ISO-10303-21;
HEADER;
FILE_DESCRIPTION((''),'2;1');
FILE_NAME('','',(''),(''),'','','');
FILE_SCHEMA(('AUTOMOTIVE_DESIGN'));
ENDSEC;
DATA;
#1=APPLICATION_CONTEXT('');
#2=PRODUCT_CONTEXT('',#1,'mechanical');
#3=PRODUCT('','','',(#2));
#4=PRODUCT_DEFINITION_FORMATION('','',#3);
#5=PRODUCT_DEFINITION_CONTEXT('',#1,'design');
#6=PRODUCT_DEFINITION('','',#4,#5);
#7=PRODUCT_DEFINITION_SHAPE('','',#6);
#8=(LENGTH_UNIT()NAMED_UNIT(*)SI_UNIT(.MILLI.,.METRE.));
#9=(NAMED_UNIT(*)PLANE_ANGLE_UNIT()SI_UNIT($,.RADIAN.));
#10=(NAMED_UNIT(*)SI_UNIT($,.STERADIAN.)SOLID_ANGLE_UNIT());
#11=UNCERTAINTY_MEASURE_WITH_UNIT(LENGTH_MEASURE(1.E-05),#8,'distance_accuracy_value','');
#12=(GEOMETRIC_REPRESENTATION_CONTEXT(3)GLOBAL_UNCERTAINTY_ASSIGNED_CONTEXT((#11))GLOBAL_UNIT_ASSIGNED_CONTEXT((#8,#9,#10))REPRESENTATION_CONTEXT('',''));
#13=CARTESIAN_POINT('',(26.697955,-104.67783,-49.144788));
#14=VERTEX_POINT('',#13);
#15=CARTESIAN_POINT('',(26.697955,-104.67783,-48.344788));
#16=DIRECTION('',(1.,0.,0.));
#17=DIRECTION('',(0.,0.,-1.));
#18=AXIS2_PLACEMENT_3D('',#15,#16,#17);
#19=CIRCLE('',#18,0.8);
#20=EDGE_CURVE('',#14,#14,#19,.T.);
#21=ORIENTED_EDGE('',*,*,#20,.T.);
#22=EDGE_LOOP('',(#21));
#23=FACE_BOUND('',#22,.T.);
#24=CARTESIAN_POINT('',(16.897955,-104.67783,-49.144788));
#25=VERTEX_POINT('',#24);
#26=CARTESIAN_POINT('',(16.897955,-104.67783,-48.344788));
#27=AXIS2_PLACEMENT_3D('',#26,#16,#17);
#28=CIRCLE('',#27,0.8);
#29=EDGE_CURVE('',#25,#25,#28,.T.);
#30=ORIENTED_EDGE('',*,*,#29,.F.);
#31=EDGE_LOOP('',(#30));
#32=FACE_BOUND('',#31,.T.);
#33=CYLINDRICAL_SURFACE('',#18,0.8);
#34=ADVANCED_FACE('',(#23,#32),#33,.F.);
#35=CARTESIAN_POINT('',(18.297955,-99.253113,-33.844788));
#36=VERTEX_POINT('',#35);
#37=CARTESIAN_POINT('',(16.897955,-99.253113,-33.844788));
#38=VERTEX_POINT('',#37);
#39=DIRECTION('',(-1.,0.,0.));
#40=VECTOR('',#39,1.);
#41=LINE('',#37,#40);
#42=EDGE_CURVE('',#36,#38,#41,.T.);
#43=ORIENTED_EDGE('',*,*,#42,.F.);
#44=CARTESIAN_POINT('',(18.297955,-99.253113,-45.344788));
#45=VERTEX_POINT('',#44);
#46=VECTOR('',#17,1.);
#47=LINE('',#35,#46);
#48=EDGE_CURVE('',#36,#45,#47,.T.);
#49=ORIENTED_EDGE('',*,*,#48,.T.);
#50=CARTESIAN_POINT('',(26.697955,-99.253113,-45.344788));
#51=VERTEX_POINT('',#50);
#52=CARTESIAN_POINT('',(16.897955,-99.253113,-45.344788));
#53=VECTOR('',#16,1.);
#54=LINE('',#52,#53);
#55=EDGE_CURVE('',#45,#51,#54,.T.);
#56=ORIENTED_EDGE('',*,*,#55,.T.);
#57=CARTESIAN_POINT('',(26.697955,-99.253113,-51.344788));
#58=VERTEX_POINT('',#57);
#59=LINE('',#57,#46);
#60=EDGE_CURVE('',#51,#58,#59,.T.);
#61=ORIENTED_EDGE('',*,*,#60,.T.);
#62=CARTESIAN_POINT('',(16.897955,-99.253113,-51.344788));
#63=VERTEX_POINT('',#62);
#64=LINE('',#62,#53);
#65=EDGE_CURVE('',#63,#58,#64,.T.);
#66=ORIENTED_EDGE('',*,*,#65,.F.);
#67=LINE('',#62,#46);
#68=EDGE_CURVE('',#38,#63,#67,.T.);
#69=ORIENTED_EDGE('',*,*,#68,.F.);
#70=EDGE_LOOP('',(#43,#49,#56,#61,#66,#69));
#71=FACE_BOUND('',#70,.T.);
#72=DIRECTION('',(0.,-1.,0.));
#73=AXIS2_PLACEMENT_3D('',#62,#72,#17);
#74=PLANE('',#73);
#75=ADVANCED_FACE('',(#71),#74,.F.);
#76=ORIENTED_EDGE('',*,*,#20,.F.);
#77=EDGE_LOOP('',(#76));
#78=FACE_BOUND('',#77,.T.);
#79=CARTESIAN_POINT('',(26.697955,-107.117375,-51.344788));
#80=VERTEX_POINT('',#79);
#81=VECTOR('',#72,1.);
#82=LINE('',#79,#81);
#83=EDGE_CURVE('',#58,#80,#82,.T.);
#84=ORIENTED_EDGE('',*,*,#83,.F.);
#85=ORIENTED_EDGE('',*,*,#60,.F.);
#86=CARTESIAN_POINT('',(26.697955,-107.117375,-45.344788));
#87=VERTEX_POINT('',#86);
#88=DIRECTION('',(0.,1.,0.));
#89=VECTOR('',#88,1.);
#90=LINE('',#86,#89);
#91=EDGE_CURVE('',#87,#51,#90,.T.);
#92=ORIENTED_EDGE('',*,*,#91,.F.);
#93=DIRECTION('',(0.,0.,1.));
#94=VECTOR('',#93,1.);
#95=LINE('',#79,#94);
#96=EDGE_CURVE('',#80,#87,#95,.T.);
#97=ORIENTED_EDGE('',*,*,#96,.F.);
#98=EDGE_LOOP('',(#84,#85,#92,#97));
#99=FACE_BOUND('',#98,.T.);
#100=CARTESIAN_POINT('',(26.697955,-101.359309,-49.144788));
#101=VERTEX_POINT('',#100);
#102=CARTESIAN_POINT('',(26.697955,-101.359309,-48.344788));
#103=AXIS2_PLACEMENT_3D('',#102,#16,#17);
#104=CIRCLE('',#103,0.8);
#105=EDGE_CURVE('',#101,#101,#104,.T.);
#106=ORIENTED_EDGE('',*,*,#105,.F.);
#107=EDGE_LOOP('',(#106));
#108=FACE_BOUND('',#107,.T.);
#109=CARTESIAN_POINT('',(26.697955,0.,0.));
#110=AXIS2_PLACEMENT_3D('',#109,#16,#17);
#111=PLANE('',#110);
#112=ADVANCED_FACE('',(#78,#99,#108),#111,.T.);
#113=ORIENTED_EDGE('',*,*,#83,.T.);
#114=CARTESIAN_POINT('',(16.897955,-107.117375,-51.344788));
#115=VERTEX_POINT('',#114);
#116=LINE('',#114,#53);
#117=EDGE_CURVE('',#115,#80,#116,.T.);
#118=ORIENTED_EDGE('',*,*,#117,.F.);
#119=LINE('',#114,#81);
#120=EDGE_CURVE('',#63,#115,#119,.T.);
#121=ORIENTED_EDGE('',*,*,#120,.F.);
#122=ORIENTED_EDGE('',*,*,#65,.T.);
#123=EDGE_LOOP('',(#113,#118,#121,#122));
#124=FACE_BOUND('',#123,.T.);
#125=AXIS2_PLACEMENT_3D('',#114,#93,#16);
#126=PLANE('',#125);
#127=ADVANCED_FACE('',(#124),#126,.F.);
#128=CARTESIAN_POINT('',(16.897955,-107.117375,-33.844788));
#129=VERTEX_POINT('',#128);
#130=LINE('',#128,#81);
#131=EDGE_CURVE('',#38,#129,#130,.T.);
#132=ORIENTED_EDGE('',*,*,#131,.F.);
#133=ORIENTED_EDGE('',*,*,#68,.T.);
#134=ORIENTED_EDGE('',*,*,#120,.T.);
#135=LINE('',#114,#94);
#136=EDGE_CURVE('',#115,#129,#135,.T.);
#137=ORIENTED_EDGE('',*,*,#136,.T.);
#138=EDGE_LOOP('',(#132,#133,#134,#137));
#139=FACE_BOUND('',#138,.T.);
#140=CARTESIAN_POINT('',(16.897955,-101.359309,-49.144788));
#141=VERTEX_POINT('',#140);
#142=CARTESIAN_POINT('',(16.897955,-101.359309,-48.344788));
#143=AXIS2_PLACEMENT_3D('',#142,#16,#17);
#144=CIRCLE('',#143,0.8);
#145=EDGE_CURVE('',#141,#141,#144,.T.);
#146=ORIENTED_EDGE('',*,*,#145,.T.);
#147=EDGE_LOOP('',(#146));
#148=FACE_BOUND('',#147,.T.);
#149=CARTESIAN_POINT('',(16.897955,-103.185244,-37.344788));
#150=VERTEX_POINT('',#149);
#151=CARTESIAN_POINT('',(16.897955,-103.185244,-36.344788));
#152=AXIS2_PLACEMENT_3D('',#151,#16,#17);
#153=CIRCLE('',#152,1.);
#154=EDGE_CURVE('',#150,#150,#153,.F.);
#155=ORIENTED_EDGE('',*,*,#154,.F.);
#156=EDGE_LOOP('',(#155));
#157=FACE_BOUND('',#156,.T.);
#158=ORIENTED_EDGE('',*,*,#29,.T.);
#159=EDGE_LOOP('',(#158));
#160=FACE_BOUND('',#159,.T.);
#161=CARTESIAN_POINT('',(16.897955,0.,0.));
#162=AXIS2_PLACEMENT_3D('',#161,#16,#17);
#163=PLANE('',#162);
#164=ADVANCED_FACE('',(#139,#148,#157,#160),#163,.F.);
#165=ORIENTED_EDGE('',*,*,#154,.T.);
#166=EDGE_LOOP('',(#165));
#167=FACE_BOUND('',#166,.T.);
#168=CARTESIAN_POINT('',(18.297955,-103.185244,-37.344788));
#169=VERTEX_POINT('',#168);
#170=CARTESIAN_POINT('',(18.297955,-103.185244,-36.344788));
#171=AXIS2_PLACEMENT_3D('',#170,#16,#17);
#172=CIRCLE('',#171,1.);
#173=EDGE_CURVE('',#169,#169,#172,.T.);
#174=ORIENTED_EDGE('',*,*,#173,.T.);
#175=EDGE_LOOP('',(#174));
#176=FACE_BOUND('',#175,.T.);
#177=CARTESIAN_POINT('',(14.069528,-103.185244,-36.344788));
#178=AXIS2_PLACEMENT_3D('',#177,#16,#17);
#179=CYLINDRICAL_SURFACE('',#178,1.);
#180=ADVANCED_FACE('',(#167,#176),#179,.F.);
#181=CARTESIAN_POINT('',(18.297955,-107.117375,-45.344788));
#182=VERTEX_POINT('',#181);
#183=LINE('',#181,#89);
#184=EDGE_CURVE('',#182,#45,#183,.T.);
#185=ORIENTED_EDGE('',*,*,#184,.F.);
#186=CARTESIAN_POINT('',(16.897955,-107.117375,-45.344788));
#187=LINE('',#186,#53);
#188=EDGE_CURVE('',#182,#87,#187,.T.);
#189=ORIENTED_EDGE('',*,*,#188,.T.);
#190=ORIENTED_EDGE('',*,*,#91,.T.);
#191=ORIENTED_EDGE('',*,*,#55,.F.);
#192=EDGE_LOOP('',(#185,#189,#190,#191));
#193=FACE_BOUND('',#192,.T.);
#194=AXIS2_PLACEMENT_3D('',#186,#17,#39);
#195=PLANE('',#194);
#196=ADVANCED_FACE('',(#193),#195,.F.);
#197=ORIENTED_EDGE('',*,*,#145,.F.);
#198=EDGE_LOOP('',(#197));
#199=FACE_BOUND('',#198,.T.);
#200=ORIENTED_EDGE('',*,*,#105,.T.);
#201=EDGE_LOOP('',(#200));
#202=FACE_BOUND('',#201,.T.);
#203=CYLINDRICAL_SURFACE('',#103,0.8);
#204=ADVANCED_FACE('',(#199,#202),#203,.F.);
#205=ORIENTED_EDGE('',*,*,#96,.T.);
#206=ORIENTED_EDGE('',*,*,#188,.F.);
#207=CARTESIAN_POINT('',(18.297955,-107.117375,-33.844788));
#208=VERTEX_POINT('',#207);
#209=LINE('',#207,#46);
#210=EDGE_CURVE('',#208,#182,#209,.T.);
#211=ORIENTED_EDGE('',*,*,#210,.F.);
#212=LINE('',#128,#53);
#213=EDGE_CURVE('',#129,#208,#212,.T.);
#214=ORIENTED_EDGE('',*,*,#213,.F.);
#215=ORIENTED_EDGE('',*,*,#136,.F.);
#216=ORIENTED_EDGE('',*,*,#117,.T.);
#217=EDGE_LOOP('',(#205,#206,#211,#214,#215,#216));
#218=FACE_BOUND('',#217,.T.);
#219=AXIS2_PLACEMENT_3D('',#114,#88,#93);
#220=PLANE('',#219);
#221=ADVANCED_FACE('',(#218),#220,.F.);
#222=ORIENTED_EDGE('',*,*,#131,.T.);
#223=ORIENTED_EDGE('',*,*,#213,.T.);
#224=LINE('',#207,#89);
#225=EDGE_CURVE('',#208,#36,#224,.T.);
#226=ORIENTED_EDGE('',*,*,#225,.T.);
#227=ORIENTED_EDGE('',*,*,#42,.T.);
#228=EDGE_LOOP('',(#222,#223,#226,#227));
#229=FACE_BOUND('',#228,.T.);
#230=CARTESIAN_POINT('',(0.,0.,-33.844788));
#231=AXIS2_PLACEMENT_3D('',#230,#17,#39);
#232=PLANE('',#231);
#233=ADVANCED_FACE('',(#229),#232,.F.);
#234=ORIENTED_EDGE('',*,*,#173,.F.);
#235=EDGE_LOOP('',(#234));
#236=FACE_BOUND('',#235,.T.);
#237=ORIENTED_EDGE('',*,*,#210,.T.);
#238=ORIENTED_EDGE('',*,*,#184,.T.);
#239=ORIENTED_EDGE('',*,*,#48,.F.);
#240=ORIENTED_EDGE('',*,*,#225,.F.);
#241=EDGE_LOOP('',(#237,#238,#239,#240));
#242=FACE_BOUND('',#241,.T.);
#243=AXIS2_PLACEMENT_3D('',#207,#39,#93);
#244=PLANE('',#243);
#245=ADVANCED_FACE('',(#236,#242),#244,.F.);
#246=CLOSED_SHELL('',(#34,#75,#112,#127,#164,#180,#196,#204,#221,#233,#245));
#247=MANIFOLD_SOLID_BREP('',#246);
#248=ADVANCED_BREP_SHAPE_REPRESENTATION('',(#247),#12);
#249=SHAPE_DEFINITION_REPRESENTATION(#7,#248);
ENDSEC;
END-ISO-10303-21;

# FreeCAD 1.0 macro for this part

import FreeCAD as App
import Part
import Sketcher

V = App.Vector
Q = App.Units.Quantity


def add_polygon(sketch, points):
    """Adds a closed chain of lines whose ends are joined by coincident constraints."""
    first, n = sketch.GeometryCount, len(points)
    for a, b in zip(points, points[1:] + points[:1]):
        sketch.addGeometry(Part.LineSegment(App.Vector(*a, 0), App.Vector(*b, 0)), False)
    for i in range(n):
        sketch.addConstraint(Sketcher.Constraint("Coincident", first + i, 2, first + (i + 1) % n, 1))

doc = App.newDocument("Part")
body = doc.addObject("PartDesign::Body", "Body")

# Sketch on YZ plane
sketch1 = body.newObject("Sketcher::SketchObject", "Sketch")
sketch1.AttachmentSupport = (doc.getObject("YZ_Plane"), [""])
sketch1.MapMode = "FlatFace"
sketch1.AttachmentOffset = App.Placement(V(0, 0, 26.697955), App.Rotation())
add_polygon(sketch1, [(-99.253113, -51.344788), (-107.117375, -51.344788), (-107.117375, -45.344788), (-99.253113, -45.344788)])  # lines 0-3
sketch1.addConstraint([
    Sketcher.Constraint("Horizontal", 0),
    Sketcher.Constraint("Vertical", 1),
    Sketcher.Constraint("Horizontal", 2),
    Sketcher.Constraint("Vertical", 3),
    Sketcher.Constraint("DistanceY", 1, 1, 1, 2, Q("6 mm")),
    Sketcher.Constraint("DistanceX", 0, 2, 0, 1, Q("7.864262 mm")),
    Sketcher.Constraint("DistanceY", 0, 2, -1, 1, Q("51.344788 mm")),
    Sketcher.Constraint("DistanceX", 0, 2, -1, 1, Q("107.117375 mm")),
])
pad1 = body.newObject("PartDesign::Pad", "Pad")
pad1.Profile = sketch1
pad1.Length = 9.8
pad1.Reversed = True

# Sketch on XY plane
sketch2 = body.newObject("Sketcher::SketchObject", "Sketch001")
sketch2.AttachmentSupport = (doc.getObject("XY_Plane"), [""])
sketch2.MapMode = "FlatFace"
sketch2.AttachmentOffset = App.Placement(V(0, 0, -45.344788), App.Rotation())
add_polygon(sketch2, [(16.897955, -99.253113), (16.897955, -107.117375), (18.297955, -107.117375), (18.297955, -99.253113)])  # lines 0-3
sketch2.addConstraint([
    Sketcher.Constraint("Vertical", 0),
    Sketcher.Constraint("Horizontal", 1),
    Sketcher.Constraint("Vertical", 2),
    Sketcher.Constraint("Horizontal", 3),
    Sketcher.Constraint("DistanceX", 1, 1, 1, 2, Q("1.4 mm")),
    Sketcher.Constraint("DistanceY", 0, 2, 0, 1, Q("7.864262 mm")),
    Sketcher.Constraint("DistanceX", -1, 1, 0, 2, Q("16.897955 mm")),
    Sketcher.Constraint("DistanceY", 0, 2, -1, 1, Q("107.117375 mm")),
])
pad2 = body.newObject("PartDesign::Pad", "Pad001")
pad2.Profile = sketch2
pad2.Length = 11.5

# Sketch on YZ plane
sketch3 = body.newObject("Sketcher::SketchObject", "Sketch002")
sketch3.AttachmentSupport = (doc.getObject("YZ_Plane"), [""])
sketch3.MapMode = "FlatFace"
sketch3.AttachmentOffset = App.Placement(V(0, 0, 18.297955), App.Rotation())
sketch3.addGeometry(Part.Circle(V(-103.185244, -36.344788, 0), V(0, 0, 1), 1), False)
sketch3.addConstraint([
    Sketcher.Constraint("Diameter", 0, Q("2 mm")),
    Sketcher.Constraint("DistanceY", 0, 3, -1, 1, Q("36.344788 mm")),
    Sketcher.Constraint("DistanceX", 0, 3, -1, 1, Q("103.185244 mm")),
])
pocket1 = body.newObject("PartDesign::Pocket", "Pocket")
pocket1.Profile = sketch3
pocket1.Length = 1.4

# Sketch on YZ plane
sketch4 = body.newObject("Sketcher::SketchObject", "Sketch003")
sketch4.AttachmentSupport = (doc.getObject("YZ_Plane"), [""])
sketch4.MapMode = "FlatFace"
sketch4.AttachmentOffset = App.Placement(V(0, 0, 26.697955), App.Rotation())
sketch4.addGeometry([
    Part.Circle(V(-104.67783, -48.344788, 0), V(0, 0, 1), 0.8),
    Part.Circle(V(-101.359309, -48.344788, 0), V(0, 0, 1), 0.8),
], False)
sketch4.addConstraint([
    Sketcher.Constraint("Equal", 0, 1),
    Sketcher.Constraint("Horizontal", 0, 3, 1, 3),
    Sketcher.Constraint("Diameter", 0, Q("1.6 mm")),
    Sketcher.Constraint("DistanceX", 0, 3, -1, 1, Q("104.67783 mm")),
    Sketcher.Constraint("DistanceY", 0, 3, -1, 1, Q("48.344788 mm")),
    Sketcher.Constraint("DistanceX", 1, 3, -1, 1, Q("101.359309 mm")),
])
doc.recompute()
hole = body.newObject("PartDesign::Hole", "Hole")
hole.Profile = sketch4
hole.ThreadType = "None"
hole.Diameter = 1.6
hole.DepthType = "Dimension"
hole.Depth = 13
hole.DrillPoint = "Angled"
hole.DrillPointAngle = 118

doc.recompute()
